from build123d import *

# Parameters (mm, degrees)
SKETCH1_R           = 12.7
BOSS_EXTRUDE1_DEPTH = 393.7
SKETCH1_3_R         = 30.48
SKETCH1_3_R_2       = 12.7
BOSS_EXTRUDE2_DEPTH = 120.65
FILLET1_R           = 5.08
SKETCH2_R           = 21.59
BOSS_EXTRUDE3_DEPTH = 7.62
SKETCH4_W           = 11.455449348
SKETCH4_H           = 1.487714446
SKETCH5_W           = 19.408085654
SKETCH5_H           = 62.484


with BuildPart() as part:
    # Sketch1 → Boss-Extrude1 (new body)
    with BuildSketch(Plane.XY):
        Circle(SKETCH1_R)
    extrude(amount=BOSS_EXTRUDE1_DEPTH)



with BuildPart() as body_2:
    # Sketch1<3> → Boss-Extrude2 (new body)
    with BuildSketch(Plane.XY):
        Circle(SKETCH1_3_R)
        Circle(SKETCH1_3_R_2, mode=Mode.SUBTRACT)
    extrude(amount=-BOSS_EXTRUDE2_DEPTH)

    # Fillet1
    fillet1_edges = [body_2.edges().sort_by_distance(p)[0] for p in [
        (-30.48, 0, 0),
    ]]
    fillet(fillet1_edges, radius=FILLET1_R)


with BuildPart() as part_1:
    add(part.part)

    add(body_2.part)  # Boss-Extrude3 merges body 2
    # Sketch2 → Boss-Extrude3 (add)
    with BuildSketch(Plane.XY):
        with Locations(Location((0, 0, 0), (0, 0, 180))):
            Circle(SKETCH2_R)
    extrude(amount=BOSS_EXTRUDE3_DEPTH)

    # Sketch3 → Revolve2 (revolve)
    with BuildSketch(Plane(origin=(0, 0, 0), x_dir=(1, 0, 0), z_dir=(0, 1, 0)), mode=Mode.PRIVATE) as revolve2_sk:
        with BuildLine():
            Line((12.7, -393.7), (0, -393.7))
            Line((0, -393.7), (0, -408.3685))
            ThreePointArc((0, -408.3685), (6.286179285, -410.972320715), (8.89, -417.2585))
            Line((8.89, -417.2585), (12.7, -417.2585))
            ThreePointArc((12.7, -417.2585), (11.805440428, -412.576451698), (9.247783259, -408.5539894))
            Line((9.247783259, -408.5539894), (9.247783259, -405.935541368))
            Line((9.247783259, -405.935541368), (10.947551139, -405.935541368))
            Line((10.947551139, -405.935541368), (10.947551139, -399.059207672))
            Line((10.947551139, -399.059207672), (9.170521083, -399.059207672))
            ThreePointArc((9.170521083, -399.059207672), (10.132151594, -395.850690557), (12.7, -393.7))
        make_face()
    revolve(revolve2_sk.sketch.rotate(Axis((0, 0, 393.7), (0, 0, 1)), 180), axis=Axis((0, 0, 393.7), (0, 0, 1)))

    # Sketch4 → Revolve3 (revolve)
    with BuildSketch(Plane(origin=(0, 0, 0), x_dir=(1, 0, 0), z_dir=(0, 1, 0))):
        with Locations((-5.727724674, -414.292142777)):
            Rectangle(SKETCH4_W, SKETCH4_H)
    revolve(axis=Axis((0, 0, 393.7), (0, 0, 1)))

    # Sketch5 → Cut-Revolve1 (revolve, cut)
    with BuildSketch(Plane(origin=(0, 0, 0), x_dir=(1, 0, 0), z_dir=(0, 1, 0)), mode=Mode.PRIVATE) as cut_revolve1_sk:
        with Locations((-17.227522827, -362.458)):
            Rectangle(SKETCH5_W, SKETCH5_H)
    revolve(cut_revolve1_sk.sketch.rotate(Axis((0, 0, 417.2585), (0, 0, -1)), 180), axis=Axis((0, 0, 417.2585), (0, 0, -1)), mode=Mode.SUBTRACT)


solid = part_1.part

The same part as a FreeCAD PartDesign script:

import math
import FreeCAD as App
import Part
import Sketcher

V = App.Vector
Q = App.Units.Quantity


def edges_at(feature, points):
    """Names of the edges that pass closest to the given points."""
    edges = feature.Shape.Edges
    near = lambda p: min(range(len(edges)), key=lambda i: edges[i].distToShape(Part.Vertex(*p))[0])
    return sorted({f"Edge{near(p) + 1}" for p in points})


def add_polygon(sketch, points):
    """Adds a closed chain of lines whose ends are joined by coincident constraints."""
    first, n = sketch.GeometryCount, len(points)
    for a, b in zip(points, points[1:] + points[:1]):
        sketch.addGeometry(Part.LineSegment(App.Vector(*a, 0), App.Vector(*b, 0)), False)
    for i in range(n):
        sketch.addConstraint(Sketcher.Constraint("Coincident", first + i, 2, first + (i + 1) % n, 1))

doc = App.newDocument("Part")
body = doc.addObject("PartDesign::Body", "Body")

# Sketch on XY plane
sketch1 = body.newObject("Sketcher::SketchObject", "Sketch")
sketch1.AttachmentSupport = (doc.getObject("XY_Plane"), [""])
sketch1.MapMode = "FlatFace"
sketch1.addGeometry(Part.Circle(V(0, 0, 0), V(0, 0, 1), 13), False)
sketch1.addConstraint([
    Sketcher.Constraint("Coincident", 0, 3, -1, 1),
    Sketcher.Constraint("Diameter", 0, Q("1 in")),
])
pad1 = body.newObject("PartDesign::Pad", "Pad")
pad1.Profile = sketch1
pad1.Length = Q("15.5 in")
body2 = doc.addObject("PartDesign::Body", "Body001")

# Sketch on XY plane
sketch2 = body2.newObject("Sketcher::SketchObject", "Sketch001")
sketch2.AttachmentSupport = (doc.getObject("XY_Plane001"), [""])
sketch2.MapMode = "FlatFace"
sketch2.addGeometry([
    Part.Circle(V(0, 0, 0), V(0, 0, 1), 30),
    Part.Circle(V(0, 0, 0), V(0, 0, 1), 13),
], False)
sketch2.addConstraint([
    Sketcher.Constraint("Coincident", 0, 3, -1, 1),
    Sketcher.Constraint("Coincident", 1, 3, -1, 1),
    Sketcher.Constraint("Diameter", 1, Q("1 in")),
    Sketcher.Constraint("Diameter", 0, Q("2.4 in")),
])
pad2 = body2.newObject("PartDesign::Pad", "Pad001")
pad2.Profile = sketch2
pad2.Length = Q("4.75 in")
pad2.Reversed = True
doc.recompute()

fillet = body2.newObject("PartDesign::Fillet", "Fillet")
fillet.Base = (pad2, edges_at(pad2, [(-30.48, 0, 0)]))
fillet.Radius = Q("0.2 in")
body.AllowCompound = True
doc.recompute()

boolean = body.newObject("PartDesign::Boolean", "Boolean")
boolean.Type = "Fuse"
boolean.addObjects([body2])

# Sketch on XY plane
sketch3 = body.newObject("Sketcher::SketchObject", "Sketch002")
sketch3.AttachmentSupport = (doc.getObject("XY_Plane"), [""])
sketch3.MapMode = "FlatFace"
sketch3.addGeometry(Part.Circle(V(0, 0, 0), V(0, 0, 1), 22), False)
sketch3.addConstraint([
    Sketcher.Constraint("Coincident", 0, 3, -1, 1),
    Sketcher.Constraint("Diameter", 0, Q("1.7 in")),
])
pad3 = body.newObject("PartDesign::Pad", "Pad002")
pad3.Profile = sketch3
pad3.Length = Q("0.3 in")

# Sketch on XZ plane
sketch4 = body.newObject("Sketcher::SketchObject", "Sketch003")
sketch4.AttachmentSupport = (doc.getObject("XZ_Plane"), [""])
sketch4.MapMode = "FlatFace"
sketch4.addGeometry([
    Part.LineSegment(V(12.7, 393.7, 0), V(0, 393.7, 0)),  # 0
    Part.LineSegment(V(0, 393.7, 0), V(0, 408.4, 0)),  # 1
    Part.ArcOfCircle(Part.Circle(V(0, 417.3, 0), V(0, 0, 1), 8.9), math.radians(-90), math.radians(0)),  # 2
    Part.LineSegment(V(8.9, 417.3, 0), V(12.7, 417.3, 0)),  # 3
    Part.ArcOfCircle(Part.Circle(V(0, 417.3, 0), V(0, 0, 1), 12.7), math.radians(-43), math.radians(0)),  # 4
    Part.LineSegment(V(9.2, 408.6, 0), V(9.2, 405.9, 0)),  # 5
    Part.LineSegment(V(9.2, 405.9, 0), V(10.9, 405.9, 0)),  # 6
    Part.LineSegment(V(10.9, 405.9, 0), V(10.9, 399.1, 0)),  # 7
    Part.LineSegment(V(10.9, 399.1, 0), V(9.2, 399.1, 0)),  # 8
    Part.ArcOfCircle(Part.Circle(V(15, 399.1, 0), V(0, 0, 1), 5.8), math.radians(-180), math.radians(-113)),  # 9
], False)
sketch4.addConstraint([
    Sketcher.Constraint("Coincident", 0, 2, 1, 1),
    Sketcher.Constraint("Coincident", 1, 2, 2, 1),
    Sketcher.Constraint("Coincident", 2, 2, 3, 1),
    Sketcher.Constraint("Coincident", 3, 2, 4, 2),
    Sketcher.Constraint("Coincident", 4, 1, 5, 1),
    Sketcher.Constraint("Coincident", 5, 2, 6, 1),
    Sketcher.Constraint("Coincident", 6, 2, 7, 1),
    Sketcher.Constraint("Coincident", 7, 2, 8, 1),
    Sketcher.Constraint("Coincident", 8, 2, 9, 1),
    Sketcher.Constraint("Coincident", 9, 2, 0, 1),
    Sketcher.Constraint("Horizontal", 0),
    Sketcher.Constraint("Vertical", 1),
    Sketcher.Constraint("Horizontal", 3),
    Sketcher.Constraint("Vertical", 5),
    Sketcher.Constraint("Horizontal", 6),
    Sketcher.Constraint("Vertical", 7),
    Sketcher.Constraint("Horizontal", 8),
    Sketcher.Constraint("Coincident", 4, 3, 2, 3),
    Sketcher.Constraint("PointOnObject", 2, 3, -2),
    Sketcher.Constraint("PointOnObject", 0, 2, -2),
    Sketcher.Constraint("Horizontal", 4, 3, 2, 2),
    Sketcher.Constraint("Horizontal", 9, 3, 7, 2),
    Sketcher.Constraint("Vertical", 3, 2, 9, 2),
    Sketcher.Constraint("Radius", 4, Q("0.5 in")),
    Sketcher.Constraint("Radius", 2, Q("0.35 in")),
    Sketcher.Constraint("DistanceY", -1, 1, 0, 2, Q("15.5 in")),
    Sketcher.Constraint("DistanceY", 1, 1, 1, 2, Q("0.5775 in")),
    Sketcher.Constraint("Radius", 9, Q("5.833486 mm")),
    Sketcher.Constraint("DistanceX", 8, 2, 8, 1, Q("1.77703 mm")),
    Sketcher.Constraint("DistanceY", 5, 2, 5, 1, Q("2.618448 mm")),
    Sketcher.Constraint("DistanceX", 6, 1, 6, 2, Q("1.699768 mm")),
    Sketcher.Constraint("DistanceY", 7, 2, 7, 1, Q("6.876334 mm")),
])
revolution = body.newObject("PartDesign::Revolution", "Revolution")
revolution.Profile = sketch4
revolution.ReferenceAxis = (sketch4, ["V_Axis"])
revolution.Angle = 360

# Sketch on XZ plane
sketch5 = body.newObject("Sketcher::SketchObject", "Sketch004")
sketch5.AttachmentSupport = (doc.getObject("XZ_Plane"), [""])
sketch5.MapMode = "FlatFace"
add_polygon(sketch5, [(-11.5, 413.5), (-11.5, 415), (0, 415), (0, 413.5)])  # lines 0-3
sketch5.addConstraint([
    Sketcher.Constraint("Vertical", 0),
    Sketcher.Constraint("Horizontal", 1),
    Sketcher.Constraint("Vertical", 2),
    Sketcher.Constraint("Horizontal", 3),
    Sketcher.Constraint("PointOnObject", 1, 2, -2),
    Sketcher.Constraint("DistanceY", -1, 1, 0, 2, Q("16.34 in")),
    Sketcher.Constraint("DistanceX", 1, 1, 1, 2, Q("11.455449 mm")),
    Sketcher.Constraint("DistanceY", 0, 1, 0, 2, Q("1.487714 mm")),
])
revolution2 = body.newObject("PartDesign::Revolution", "Revolution001")
revolution2.Profile = sketch5
revolution2.ReferenceAxis = (sketch5, ["V_Axis"])
revolution2.Angle = 360

# Sketch on XZ plane
sketch6 = body.newObject("Sketcher::SketchObject", "Sketch005")
sketch6.AttachmentSupport = (doc.getObject("XZ_Plane"), [""])
sketch6.MapMode = "FlatFace"
add_polygon(sketch6, [(-27, 331), (-27, 394), (-8, 394), (-8, 331)])  # lines 0-3
sketch6.addConstraint([
    Sketcher.Constraint("Vertical", 0),
    Sketcher.Constraint("Horizontal", 1),
    Sketcher.Constraint("Vertical", 2),
    Sketcher.Constraint("Horizontal", 3),
    Sketcher.Constraint("DistanceY", 0, 1, 0, 2, Q("2.46 in")),
    Sketcher.Constraint("DistanceY", -1, 1, 0, 2, Q("15.5 in")),
    Sketcher.Constraint("DistanceX", 1, 2, -1, 1, Q("0.2962 in")),
    Sketcher.Constraint("DistanceX", 1, 1, 1, 2, Q("19.408086 mm")),
])
groove = body.newObject("PartDesign::Groove", "Groove")
groove.Profile = sketch6
groove.ReferenceAxis = (sketch6, ["V_Axis"])
groove.Angle = 360

doc.recompute()
